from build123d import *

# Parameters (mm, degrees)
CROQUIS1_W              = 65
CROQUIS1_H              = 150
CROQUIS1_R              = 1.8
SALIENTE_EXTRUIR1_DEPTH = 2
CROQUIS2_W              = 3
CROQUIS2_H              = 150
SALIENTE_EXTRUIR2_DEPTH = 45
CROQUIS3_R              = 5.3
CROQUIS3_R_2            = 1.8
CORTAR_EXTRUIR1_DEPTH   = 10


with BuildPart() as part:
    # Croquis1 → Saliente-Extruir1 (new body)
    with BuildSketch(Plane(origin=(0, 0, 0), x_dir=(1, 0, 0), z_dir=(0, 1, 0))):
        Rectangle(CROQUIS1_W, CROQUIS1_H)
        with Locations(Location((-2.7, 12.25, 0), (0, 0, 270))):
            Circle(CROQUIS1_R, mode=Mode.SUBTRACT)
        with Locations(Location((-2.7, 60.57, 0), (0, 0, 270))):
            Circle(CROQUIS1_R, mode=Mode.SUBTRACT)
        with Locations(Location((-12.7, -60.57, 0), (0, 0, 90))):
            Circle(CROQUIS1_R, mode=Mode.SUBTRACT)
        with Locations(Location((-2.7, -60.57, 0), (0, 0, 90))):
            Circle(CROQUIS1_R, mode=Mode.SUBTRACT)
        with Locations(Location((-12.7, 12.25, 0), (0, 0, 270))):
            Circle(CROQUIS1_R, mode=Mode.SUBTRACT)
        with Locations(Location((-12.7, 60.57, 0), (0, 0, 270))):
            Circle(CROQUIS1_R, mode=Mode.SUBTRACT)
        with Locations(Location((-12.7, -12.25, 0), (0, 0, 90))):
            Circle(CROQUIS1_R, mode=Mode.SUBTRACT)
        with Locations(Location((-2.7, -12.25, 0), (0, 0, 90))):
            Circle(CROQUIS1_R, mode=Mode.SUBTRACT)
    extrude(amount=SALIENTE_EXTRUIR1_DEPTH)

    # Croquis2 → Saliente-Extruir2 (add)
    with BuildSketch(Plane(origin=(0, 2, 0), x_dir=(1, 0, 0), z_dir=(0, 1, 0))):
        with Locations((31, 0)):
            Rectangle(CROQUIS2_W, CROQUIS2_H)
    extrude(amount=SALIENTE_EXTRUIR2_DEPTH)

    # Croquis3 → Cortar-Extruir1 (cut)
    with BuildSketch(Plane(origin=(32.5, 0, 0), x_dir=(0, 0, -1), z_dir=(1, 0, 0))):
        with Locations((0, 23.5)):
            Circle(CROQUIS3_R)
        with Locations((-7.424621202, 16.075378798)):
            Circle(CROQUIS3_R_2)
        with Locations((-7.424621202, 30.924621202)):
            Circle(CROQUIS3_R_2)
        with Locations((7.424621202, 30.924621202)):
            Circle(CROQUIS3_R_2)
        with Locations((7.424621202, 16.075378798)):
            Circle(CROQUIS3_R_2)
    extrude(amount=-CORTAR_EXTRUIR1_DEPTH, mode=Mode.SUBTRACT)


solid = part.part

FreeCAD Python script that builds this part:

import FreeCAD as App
import Part
import Sketcher


def add_polygon(sketch, points):
    """Adds a closed chain of lines whose ends are joined by coincident constraints."""
    first, n = sketch.GeometryCount, len(points)
    for a, b in zip(points, points[1:] + points[:1]):
        sketch.addGeometry(Part.LineSegment(App.Vector(*a, 0), App.Vector(*b, 0)), False)
    for i in range(n):
        sketch.addConstraint(Sketcher.Constraint("Coincident", first + i, 2, first + (i + 1) % n, 1))

doc = App.newDocument("Part")
body = doc.addObject("PartDesign::Body", "Body")

sketch1 = doc.addObject("Sketcher::SketchObject", "Sketch")
body.addObject(sketch1)
sketch1.AttachmentSupport = (doc.XZ_Plane, [""])
sketch1.MapMode = "FlatFace"
add_polygon(sketch1, [(-32.5, -75), (-32.5, 75), (32.5, 75), (32.5, -75)])
sketch1.addGeometry(Part.Circle(App.Vector(-12.7, 60.6, 0), App.Vector(0, 0, 1), 1.8), False)
sketch1.addGeometry(Part.Circle(App.Vector(-12.7, 12.2, 0), App.Vector(0, 0, 1), 1.8), False)
sketch1.addGeometry(Part.Circle(App.Vector(-2.7, 60.6, 0), App.Vector(0, 0, 1), 1.8), False)
sketch1.addGeometry(Part.Circle(App.Vector(-2.7, 12.2, 0), App.Vector(0, 0, 1), 1.8), False)
sketch1.addGeometry(Part.Circle(App.Vector(-12.7, -12.2, 0), App.Vector(0, 0, 1), 1.8), False)
sketch1.addGeometry(Part.Circle(App.Vector(-12.7, -60.6, 0), App.Vector(0, 0, 1), 1.8), False)
sketch1.addGeometry(Part.Circle(App.Vector(-2.7, -12.2, 0), App.Vector(0, 0, 1), 1.8), False)
sketch1.addGeometry(Part.Circle(App.Vector(-2.7, -60.6, 0), App.Vector(0, 0, 1), 1.8), False)
sketch1.addConstraint([
    Sketcher.Constraint("Vertical", 0),
    Sketcher.Constraint("Horizontal", 1),
    Sketcher.Constraint("Vertical", 2),
    Sketcher.Constraint("Horizontal", 3),
    Sketcher.Constraint("Equal", 4, 5),
    Sketcher.Constraint("Equal", 5, 6),
    Sketcher.Constraint("Equal", 6, 7),
    Sketcher.Constraint("Equal", 7, 8),
    Sketcher.Constraint("Equal", 8, 9),
    Sketcher.Constraint("Equal", 9, 10),
    Sketcher.Constraint("Equal", 10, 11),
    Sketcher.Constraint("Symmetric", 0, 2, 2, 2, -1, 1),
    Sketcher.Constraint("Symmetric", 5, 3, 8, 3, -1),
    Sketcher.Constraint("Symmetric", 4, 3, 9, 3, -1),
    Sketcher.Constraint("Symmetric", 7, 3, 10, 3, -1),
    Sketcher.Constraint("Symmetric", 6, 3, 11, 3, -1),
    Sketcher.Constraint("Horizontal", 4, 3, 6, 3),
    Sketcher.Constraint("Horizontal", 5, 3, 7, 3),
    Sketcher.Constraint("Vertical", 4, 3, 5, 3),
    Sketcher.Constraint("Vertical", 6, 3, 7, 3),
    Sketcher.Constraint("Diameter", 4, 3.6),
    Sketcher.Constraint("DistanceX", 1, 1, 1, 2, 65.0),
    Sketcher.Constraint("DistanceY", 0, 1, 0, 2, 150.0),
    Sketcher.Constraint("DistanceX", 4, 3, 6, 3, 10.0),
    Sketcher.Constraint("DistanceX", 4, 3, -1, 1, 12.7),
    Sketcher.Constraint("DistanceY", 8, 3, 5, 3, 24.5),
    Sketcher.Constraint("DistanceY", -1, 1, 4, 3, 60.57),
])
pad1 = doc.addObject("PartDesign::Pad", "Pad")
body.addObject(pad1)
pad1.Profile = sketch1
pad1.Length = 2
pad1.Reversed = True

sketch2 = doc.addObject("Sketcher::SketchObject", "Sketch001")
body.addObject(sketch2)
sketch2.AttachmentSupport = (doc.XZ_Plane, [""])
sketch2.MapMode = "FlatFace"
sketch2.AttachmentOffset = App.Placement(App.Vector(0, 0, -2), App.Rotation())
add_polygon(sketch2, [(29.5, -75), (29.5, 75), (32.5, 75), (32.5, -75)])
sketch2.addConstraint([
    Sketcher.Constraint("Vertical", 0),
    Sketcher.Constraint("Horizontal", 1),
    Sketcher.Constraint("Vertical", 2),
    Sketcher.Constraint("Horizontal", 3),
    Sketcher.Constraint("DistanceX", 1, 1, 1, 2, 3.0),
    Sketcher.Constraint("DistanceY", 0, 1, 0, 2, 150.0),
    Sketcher.Constraint("DistanceY", -1, 1, 0, 2, 75.0),
    Sketcher.Constraint("DistanceX", -1, 1, 0, 2, 29.5),
])
pad2 = doc.addObject("PartDesign::Pad", "Pad001")
body.addObject(pad2)
pad2.Profile = sketch2
pad2.Length = 45
pad2.Reversed = True

sketch3 = doc.addObject("Sketcher::SketchObject", "Sketch002")
body.addObject(sketch3)
sketch3.AttachmentSupport = (doc.YZ_Plane, [""])
sketch3.MapMode = "FlatFace"
sketch3.AttachmentOffset = App.Placement(App.Vector(0, 0, 32.5), App.Rotation())
sketch3.addGeometry([
    Part.Circle(App.Vector(23.5, 0, 0), App.Vector(0, 0, 1), 5.3),
    Part.Circle(App.Vector(16.1, 7.4, 0), App.Vector(0, 0, 1), 1.8),
    Part.Circle(App.Vector(30.9, 7.4, 0), App.Vector(0, 0, 1), 1.8),
    Part.Circle(App.Vector(30.9, -7.4, 0), App.Vector(0, 0, 1), 1.8),
    Part.Circle(App.Vector(16.1, -7.4, 0), App.Vector(0, 0, 1), 1.8),
], False)
sketch3.addConstraint([
    Sketcher.Constraint("Equal", 1, 2),
    Sketcher.Constraint("Equal", 2, 3),
    Sketcher.Constraint("Equal", 3, 4),
    Sketcher.Constraint("Symmetric", 2, 3, 3, 3, -1),
    Sketcher.Constraint("Symmetric", 1, 3, 4, 3, -1),
    Sketcher.Constraint("PointOnObject", 0, 3, -1),
    Sketcher.Constraint("Horizontal", 1, 3, 2, 3),
    Sketcher.Constraint("Diameter", 0, 10.6),
    Sketcher.Constraint("Diameter", 1, 3.6),
    Sketcher.Constraint("DistanceX", -1, 1, 0, 3, 23.5),
    Sketcher.Constraint("DistanceX", -1, 1, 1, 3, 16.075379),
    Sketcher.Constraint("DistanceY", -1, 1, 1, 3, 7.424621),
    Sketcher.Constraint("DistanceX", -1, 1, 2, 3, 30.924621),
])
pocket1 = doc.addObject("PartDesign::Pocket", "Pocket")
body.addObject(pocket1)
pocket1.Profile = sketch3
pocket1.Length = 10

doc.recompute()
